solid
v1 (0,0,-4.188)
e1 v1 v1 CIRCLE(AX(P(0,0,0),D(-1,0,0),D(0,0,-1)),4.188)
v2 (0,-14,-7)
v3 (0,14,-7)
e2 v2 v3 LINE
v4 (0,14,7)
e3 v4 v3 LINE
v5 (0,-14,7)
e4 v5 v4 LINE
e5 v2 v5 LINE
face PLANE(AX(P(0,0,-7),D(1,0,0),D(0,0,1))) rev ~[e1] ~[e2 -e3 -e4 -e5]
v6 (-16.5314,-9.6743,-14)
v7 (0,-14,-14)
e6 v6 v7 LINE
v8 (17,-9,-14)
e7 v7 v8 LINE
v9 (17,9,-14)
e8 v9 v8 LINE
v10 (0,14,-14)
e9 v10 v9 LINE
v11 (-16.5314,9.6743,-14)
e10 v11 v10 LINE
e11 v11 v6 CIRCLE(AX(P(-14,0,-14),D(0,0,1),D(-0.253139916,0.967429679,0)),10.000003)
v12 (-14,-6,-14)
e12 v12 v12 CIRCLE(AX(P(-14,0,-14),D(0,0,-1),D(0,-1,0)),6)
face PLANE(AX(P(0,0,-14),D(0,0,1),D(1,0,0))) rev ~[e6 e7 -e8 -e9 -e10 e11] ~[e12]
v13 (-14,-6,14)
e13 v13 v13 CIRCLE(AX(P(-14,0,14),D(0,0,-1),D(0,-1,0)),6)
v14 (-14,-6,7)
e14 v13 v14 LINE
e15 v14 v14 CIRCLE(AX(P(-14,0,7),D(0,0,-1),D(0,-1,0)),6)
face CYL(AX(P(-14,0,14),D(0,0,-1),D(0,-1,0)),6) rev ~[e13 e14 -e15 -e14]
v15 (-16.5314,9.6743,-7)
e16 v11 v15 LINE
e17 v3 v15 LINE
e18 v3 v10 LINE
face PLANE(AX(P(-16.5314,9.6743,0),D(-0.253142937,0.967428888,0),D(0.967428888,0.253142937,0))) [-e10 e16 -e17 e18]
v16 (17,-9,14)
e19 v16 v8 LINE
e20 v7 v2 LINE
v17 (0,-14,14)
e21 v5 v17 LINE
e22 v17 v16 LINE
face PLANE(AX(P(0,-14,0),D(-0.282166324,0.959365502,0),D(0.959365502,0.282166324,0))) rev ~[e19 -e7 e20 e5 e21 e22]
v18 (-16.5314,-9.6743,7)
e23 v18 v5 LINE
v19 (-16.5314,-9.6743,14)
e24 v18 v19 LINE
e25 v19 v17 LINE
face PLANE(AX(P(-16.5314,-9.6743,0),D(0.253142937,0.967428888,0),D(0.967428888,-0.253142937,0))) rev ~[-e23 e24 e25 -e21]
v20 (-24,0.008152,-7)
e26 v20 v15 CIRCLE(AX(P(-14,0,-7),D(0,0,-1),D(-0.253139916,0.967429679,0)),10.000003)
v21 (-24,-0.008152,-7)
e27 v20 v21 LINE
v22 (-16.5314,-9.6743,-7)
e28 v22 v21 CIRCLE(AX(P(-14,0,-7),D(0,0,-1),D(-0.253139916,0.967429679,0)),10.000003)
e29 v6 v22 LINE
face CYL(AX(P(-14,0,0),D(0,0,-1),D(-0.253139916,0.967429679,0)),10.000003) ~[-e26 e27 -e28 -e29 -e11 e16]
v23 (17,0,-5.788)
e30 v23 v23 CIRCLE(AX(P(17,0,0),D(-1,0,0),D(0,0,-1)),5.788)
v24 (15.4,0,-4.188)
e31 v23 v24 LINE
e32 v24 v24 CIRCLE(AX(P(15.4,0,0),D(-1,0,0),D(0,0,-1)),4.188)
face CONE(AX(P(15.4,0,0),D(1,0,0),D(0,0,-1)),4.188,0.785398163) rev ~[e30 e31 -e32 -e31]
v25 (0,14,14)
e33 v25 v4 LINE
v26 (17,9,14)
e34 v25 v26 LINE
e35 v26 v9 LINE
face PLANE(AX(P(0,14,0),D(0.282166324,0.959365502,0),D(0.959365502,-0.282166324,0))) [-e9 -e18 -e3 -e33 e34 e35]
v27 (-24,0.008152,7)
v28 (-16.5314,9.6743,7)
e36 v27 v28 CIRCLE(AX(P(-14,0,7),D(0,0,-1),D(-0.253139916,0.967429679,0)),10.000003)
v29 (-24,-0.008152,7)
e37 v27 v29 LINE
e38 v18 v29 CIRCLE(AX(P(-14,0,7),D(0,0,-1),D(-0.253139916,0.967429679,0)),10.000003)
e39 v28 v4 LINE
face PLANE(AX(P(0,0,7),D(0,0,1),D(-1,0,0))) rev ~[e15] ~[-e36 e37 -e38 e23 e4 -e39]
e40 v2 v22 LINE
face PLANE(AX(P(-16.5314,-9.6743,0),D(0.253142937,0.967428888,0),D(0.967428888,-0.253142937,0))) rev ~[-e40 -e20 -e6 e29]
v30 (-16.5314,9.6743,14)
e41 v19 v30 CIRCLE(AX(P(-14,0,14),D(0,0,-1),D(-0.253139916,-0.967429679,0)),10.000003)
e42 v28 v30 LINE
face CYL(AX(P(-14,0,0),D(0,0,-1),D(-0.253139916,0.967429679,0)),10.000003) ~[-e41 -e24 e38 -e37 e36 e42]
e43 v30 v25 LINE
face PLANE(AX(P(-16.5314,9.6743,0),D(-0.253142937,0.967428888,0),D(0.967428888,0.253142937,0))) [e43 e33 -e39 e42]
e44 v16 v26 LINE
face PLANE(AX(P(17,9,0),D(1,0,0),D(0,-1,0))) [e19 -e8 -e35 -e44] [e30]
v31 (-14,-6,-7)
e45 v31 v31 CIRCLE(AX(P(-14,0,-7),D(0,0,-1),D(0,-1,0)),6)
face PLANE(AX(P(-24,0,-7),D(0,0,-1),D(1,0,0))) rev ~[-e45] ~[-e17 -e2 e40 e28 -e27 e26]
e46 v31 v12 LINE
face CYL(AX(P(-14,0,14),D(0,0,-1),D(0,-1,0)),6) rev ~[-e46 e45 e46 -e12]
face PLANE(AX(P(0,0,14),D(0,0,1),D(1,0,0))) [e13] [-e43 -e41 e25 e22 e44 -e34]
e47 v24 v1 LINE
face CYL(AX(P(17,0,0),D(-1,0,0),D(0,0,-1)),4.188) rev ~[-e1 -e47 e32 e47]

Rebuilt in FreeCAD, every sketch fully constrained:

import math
import FreeCAD as App
import Part
import Sketcher

V = App.Vector


def edges_at(feature, points):
    """Names of the edges that pass closest to the given points."""
    edges = feature.Shape.Edges
    near = lambda p: min(range(len(edges)), key=lambda i: edges[i].distToShape(Part.Vertex(*p))[0])
    return sorted({f"Edge{near(p) + 1}" for p in points})


def add_polygon(sketch, points):
    """Adds a closed chain of lines whose ends are joined by coincident constraints."""
    first, n = sketch.GeometryCount, len(points)
    for a, b in zip(points, points[1:] + points[:1]):
        sketch.addGeometry(Part.LineSegment(App.Vector(*a, 0), App.Vector(*b, 0)), False)
    for i in range(n):
        sketch.addConstraint(Sketcher.Constraint("Coincident", first + i, 2, first + (i + 1) % n, 1))

doc = App.newDocument("Part")
params = doc.addObject("Spreadsheet::Sheet", "Params")
for row, (alias, value) in enumerate([
    ("sketch1_radius", "10 mm"),
    ("sketch1_height", "18 mm"),
    ("pad1_length", "28 mm"),
    ("sketch2_height", "14 mm"),
    ("sketch2_width", "24 mm"),
    ("sketch3_diameter", "12 mm"),
    ("hole_diameter", "12 mm"),
    ("hole2_diameter", "8.376 mm"),
    ("chamfer_size", "1.6 mm"),
], start=1):
    params.set(f"A{row}", alias)
    params.set(f"B{row}", "=" + value)
    params.setAlias(f"B{row}", alias)

body = doc.addObject("PartDesign::Body", "Body")

sketch1 = body.newObject("Sketcher::SketchObject", "Sketch")
sketch1.AttachmentSupport = (doc.getObject("XY_Plane"), [""])
sketch1.MapMode = "FlatFace"
sketch1.addGeometry(Part.LineSegment(V(0, 14, 0), V(-17, 10, 0)), False)
sketch1.addGeometry(Part.ArcOfCircle(Part.Circle(V(-14, 0, 0), V(0, 0, 1), 10), math.radians(105), math.radians(255)), False)
sketch1.addGeometry(Part.LineSegment(V(-17, -10, 0), V(0, -14, 0)), False)
sketch1.addGeometry(Part.LineSegment(V(0, -14, 0), V(17, -9, 0)), False)
sketch1.addGeometry(Part.LineSegment(V(17, -9, 0), V(17, 9, 0)), False)
sketch1.addGeometry(Part.LineSegment(V(17, 9, 0), V(0, 14, 0)), False)
sketch1.addConstraint(Sketcher.Constraint("Tangent", 0, 2, 1, 1))
sketch1.addConstraint(Sketcher.Constraint("Tangent", 1, 2, 2, 1))
sketch1.addConstraint(Sketcher.Constraint("Coincident", 2, 2, 3, 1))
sketch1.addConstraint(Sketcher.Constraint("Coincident", 3, 2, 4, 1))
sketch1.addConstraint(Sketcher.Constraint("Coincident", 4, 2, 5, 1))
sketch1.addConstraint(Sketcher.Constraint("Coincident", 5, 2, 0, 1))
sketch1.addConstraint(Sketcher.Constraint("Vertical", 4))
sketch1.addConstraint(Sketcher.Constraint("Symmetric", 2, 2, 5, 2, -1, 1))
sketch1.addConstraint(Sketcher.Constraint("Symmetric", 0, 2, 1, 2, -1))
sketch1.addConstraint(Sketcher.Constraint("Equal", 3, 5))
sketch1.addConstraint(Sketcher.Constraint("Radius", 1, 10.0))
sketch1.addConstraint(Sketcher.Constraint("DistanceY", 4, 1, 4, 2, 18.0))
sketch1.addConstraint(Sketcher.Constraint("DistanceX", 1, 3, -1, 1, 14.0))
sketch1.addConstraint(Sketcher.Constraint("DistanceY", 2, 2, -1, 1, 14.0))
sketch1.addConstraint(Sketcher.Constraint("DistanceX", 1, 3, 3, 2, 31.0))
sketch1.setExpression("Constraints[10]", "Params.sketch1_radius")
sketch1.setExpression("Constraints[11]", "Params.sketch1_height")
pad1 = body.newObject("PartDesign::Pad", "Pad")
pad1.Profile = sketch1
pad1.setExpression("Length", "Params.pad1_length")
pad1.Midplane = True

sketch2 = body.newObject("Sketcher::SketchObject", "Sketch001")
sketch2.AttachmentSupport = (doc.getObject("XZ_Plane"), [""])
sketch2.MapMode = "FlatFace"
add_polygon(sketch2, [(-24, 7), (0, 7), (0, -7), (-24, -7)])
sketch2.addConstraint(Sketcher.Constraint("Horizontal", 0))
sketch2.addConstraint(Sketcher.Constraint("Vertical", 1))
sketch2.addConstraint(Sketcher.Constraint("Horizontal", 2))
sketch2.addConstraint(Sketcher.Constraint("Vertical", 3))
sketch2.addConstraint(Sketcher.Constraint("Symmetric", 0, 2, 1, 2, -1, 1))
sketch2.addConstraint(Sketcher.Constraint("DistanceY", 1, 2, 1, 1, 14.0))
sketch2.addConstraint(Sketcher.Constraint("DistanceX", 0, 1, 0, 2, 24.0))
sketch2.setExpression("Constraints[9]", "Params.sketch2_height")
sketch2.setExpression("Constraints[10]", "Params.sketch2_width")
pocket1 = body.newObject("PartDesign::Pocket", "Pocket")
pocket1.Profile = sketch2
pocket1.Type = "ThroughAll"
pocket1.Midplane = True

sketch3 = body.newObject("Sketcher::SketchObject", "Sketch002")
sketch3.AttachmentSupport = (doc.getObject("XY_Plane"), [""])
sketch3.MapMode = "FlatFace"
sketch3.AttachmentOffset = App.Placement(V(0, 0, 14), App.Rotation())
sketch3.addGeometry(Part.Circle(V(-14, 0, 0), V(0, 0, 1), 6), False)
sketch3.addConstraint(Sketcher.Constraint("PointOnObject", 0, 3, -1))
sketch3.addConstraint(Sketcher.Constraint("Diameter", 0, 12.0))
sketch3.addConstraint(Sketcher.Constraint("DistanceX", 0, 3, -1, 1, 14.0))
sketch3.setExpression("Constraints[1]", "Params.sketch3_diameter")
doc.recompute()
hole = body.newObject("PartDesign::Hole", "Hole")
hole.Profile = sketch3
hole.ThreadType = "None"
hole.setExpression("Diameter", "Params.hole_diameter")
hole.DepthType = "ThroughAll"

sketch4 = body.newObject("Sketcher::SketchObject", "Sketch003")
sketch4.AttachmentSupport = (doc.getObject("YZ_Plane"), [""])
sketch4.MapMode = "FlatFace"
sketch4.AttachmentOffset = App.Placement(V(0, 0, 17), App.Rotation())
sketch4.addGeometry(Part.Circle(V(0, 0, 0), V(0, 0, 1), 4.2), False)
sketch4.addConstraint(Sketcher.Constraint("Coincident", 0, 3, -1, 1))
sketch4.addConstraint(Sketcher.Constraint("Diameter", 0, 8.376))
doc.recompute()
hole2 = body.newObject("PartDesign::Hole", "Hole001")
hole2.Profile = sketch4
hole2.ThreadType = "None"
hole2.setExpression("Diameter", "Params.hole2_diameter")
hole2.DepthType = "ThroughAll"
doc.recompute()

chamfer = body.newObject("PartDesign::Chamfer", "Chamfer")
chamfer.Base = (hole2, edges_at(hole2, [(17, 0, 4.188)]))
chamfer.setExpression("Size", "Params.chamfer_size")

doc.recompute()
